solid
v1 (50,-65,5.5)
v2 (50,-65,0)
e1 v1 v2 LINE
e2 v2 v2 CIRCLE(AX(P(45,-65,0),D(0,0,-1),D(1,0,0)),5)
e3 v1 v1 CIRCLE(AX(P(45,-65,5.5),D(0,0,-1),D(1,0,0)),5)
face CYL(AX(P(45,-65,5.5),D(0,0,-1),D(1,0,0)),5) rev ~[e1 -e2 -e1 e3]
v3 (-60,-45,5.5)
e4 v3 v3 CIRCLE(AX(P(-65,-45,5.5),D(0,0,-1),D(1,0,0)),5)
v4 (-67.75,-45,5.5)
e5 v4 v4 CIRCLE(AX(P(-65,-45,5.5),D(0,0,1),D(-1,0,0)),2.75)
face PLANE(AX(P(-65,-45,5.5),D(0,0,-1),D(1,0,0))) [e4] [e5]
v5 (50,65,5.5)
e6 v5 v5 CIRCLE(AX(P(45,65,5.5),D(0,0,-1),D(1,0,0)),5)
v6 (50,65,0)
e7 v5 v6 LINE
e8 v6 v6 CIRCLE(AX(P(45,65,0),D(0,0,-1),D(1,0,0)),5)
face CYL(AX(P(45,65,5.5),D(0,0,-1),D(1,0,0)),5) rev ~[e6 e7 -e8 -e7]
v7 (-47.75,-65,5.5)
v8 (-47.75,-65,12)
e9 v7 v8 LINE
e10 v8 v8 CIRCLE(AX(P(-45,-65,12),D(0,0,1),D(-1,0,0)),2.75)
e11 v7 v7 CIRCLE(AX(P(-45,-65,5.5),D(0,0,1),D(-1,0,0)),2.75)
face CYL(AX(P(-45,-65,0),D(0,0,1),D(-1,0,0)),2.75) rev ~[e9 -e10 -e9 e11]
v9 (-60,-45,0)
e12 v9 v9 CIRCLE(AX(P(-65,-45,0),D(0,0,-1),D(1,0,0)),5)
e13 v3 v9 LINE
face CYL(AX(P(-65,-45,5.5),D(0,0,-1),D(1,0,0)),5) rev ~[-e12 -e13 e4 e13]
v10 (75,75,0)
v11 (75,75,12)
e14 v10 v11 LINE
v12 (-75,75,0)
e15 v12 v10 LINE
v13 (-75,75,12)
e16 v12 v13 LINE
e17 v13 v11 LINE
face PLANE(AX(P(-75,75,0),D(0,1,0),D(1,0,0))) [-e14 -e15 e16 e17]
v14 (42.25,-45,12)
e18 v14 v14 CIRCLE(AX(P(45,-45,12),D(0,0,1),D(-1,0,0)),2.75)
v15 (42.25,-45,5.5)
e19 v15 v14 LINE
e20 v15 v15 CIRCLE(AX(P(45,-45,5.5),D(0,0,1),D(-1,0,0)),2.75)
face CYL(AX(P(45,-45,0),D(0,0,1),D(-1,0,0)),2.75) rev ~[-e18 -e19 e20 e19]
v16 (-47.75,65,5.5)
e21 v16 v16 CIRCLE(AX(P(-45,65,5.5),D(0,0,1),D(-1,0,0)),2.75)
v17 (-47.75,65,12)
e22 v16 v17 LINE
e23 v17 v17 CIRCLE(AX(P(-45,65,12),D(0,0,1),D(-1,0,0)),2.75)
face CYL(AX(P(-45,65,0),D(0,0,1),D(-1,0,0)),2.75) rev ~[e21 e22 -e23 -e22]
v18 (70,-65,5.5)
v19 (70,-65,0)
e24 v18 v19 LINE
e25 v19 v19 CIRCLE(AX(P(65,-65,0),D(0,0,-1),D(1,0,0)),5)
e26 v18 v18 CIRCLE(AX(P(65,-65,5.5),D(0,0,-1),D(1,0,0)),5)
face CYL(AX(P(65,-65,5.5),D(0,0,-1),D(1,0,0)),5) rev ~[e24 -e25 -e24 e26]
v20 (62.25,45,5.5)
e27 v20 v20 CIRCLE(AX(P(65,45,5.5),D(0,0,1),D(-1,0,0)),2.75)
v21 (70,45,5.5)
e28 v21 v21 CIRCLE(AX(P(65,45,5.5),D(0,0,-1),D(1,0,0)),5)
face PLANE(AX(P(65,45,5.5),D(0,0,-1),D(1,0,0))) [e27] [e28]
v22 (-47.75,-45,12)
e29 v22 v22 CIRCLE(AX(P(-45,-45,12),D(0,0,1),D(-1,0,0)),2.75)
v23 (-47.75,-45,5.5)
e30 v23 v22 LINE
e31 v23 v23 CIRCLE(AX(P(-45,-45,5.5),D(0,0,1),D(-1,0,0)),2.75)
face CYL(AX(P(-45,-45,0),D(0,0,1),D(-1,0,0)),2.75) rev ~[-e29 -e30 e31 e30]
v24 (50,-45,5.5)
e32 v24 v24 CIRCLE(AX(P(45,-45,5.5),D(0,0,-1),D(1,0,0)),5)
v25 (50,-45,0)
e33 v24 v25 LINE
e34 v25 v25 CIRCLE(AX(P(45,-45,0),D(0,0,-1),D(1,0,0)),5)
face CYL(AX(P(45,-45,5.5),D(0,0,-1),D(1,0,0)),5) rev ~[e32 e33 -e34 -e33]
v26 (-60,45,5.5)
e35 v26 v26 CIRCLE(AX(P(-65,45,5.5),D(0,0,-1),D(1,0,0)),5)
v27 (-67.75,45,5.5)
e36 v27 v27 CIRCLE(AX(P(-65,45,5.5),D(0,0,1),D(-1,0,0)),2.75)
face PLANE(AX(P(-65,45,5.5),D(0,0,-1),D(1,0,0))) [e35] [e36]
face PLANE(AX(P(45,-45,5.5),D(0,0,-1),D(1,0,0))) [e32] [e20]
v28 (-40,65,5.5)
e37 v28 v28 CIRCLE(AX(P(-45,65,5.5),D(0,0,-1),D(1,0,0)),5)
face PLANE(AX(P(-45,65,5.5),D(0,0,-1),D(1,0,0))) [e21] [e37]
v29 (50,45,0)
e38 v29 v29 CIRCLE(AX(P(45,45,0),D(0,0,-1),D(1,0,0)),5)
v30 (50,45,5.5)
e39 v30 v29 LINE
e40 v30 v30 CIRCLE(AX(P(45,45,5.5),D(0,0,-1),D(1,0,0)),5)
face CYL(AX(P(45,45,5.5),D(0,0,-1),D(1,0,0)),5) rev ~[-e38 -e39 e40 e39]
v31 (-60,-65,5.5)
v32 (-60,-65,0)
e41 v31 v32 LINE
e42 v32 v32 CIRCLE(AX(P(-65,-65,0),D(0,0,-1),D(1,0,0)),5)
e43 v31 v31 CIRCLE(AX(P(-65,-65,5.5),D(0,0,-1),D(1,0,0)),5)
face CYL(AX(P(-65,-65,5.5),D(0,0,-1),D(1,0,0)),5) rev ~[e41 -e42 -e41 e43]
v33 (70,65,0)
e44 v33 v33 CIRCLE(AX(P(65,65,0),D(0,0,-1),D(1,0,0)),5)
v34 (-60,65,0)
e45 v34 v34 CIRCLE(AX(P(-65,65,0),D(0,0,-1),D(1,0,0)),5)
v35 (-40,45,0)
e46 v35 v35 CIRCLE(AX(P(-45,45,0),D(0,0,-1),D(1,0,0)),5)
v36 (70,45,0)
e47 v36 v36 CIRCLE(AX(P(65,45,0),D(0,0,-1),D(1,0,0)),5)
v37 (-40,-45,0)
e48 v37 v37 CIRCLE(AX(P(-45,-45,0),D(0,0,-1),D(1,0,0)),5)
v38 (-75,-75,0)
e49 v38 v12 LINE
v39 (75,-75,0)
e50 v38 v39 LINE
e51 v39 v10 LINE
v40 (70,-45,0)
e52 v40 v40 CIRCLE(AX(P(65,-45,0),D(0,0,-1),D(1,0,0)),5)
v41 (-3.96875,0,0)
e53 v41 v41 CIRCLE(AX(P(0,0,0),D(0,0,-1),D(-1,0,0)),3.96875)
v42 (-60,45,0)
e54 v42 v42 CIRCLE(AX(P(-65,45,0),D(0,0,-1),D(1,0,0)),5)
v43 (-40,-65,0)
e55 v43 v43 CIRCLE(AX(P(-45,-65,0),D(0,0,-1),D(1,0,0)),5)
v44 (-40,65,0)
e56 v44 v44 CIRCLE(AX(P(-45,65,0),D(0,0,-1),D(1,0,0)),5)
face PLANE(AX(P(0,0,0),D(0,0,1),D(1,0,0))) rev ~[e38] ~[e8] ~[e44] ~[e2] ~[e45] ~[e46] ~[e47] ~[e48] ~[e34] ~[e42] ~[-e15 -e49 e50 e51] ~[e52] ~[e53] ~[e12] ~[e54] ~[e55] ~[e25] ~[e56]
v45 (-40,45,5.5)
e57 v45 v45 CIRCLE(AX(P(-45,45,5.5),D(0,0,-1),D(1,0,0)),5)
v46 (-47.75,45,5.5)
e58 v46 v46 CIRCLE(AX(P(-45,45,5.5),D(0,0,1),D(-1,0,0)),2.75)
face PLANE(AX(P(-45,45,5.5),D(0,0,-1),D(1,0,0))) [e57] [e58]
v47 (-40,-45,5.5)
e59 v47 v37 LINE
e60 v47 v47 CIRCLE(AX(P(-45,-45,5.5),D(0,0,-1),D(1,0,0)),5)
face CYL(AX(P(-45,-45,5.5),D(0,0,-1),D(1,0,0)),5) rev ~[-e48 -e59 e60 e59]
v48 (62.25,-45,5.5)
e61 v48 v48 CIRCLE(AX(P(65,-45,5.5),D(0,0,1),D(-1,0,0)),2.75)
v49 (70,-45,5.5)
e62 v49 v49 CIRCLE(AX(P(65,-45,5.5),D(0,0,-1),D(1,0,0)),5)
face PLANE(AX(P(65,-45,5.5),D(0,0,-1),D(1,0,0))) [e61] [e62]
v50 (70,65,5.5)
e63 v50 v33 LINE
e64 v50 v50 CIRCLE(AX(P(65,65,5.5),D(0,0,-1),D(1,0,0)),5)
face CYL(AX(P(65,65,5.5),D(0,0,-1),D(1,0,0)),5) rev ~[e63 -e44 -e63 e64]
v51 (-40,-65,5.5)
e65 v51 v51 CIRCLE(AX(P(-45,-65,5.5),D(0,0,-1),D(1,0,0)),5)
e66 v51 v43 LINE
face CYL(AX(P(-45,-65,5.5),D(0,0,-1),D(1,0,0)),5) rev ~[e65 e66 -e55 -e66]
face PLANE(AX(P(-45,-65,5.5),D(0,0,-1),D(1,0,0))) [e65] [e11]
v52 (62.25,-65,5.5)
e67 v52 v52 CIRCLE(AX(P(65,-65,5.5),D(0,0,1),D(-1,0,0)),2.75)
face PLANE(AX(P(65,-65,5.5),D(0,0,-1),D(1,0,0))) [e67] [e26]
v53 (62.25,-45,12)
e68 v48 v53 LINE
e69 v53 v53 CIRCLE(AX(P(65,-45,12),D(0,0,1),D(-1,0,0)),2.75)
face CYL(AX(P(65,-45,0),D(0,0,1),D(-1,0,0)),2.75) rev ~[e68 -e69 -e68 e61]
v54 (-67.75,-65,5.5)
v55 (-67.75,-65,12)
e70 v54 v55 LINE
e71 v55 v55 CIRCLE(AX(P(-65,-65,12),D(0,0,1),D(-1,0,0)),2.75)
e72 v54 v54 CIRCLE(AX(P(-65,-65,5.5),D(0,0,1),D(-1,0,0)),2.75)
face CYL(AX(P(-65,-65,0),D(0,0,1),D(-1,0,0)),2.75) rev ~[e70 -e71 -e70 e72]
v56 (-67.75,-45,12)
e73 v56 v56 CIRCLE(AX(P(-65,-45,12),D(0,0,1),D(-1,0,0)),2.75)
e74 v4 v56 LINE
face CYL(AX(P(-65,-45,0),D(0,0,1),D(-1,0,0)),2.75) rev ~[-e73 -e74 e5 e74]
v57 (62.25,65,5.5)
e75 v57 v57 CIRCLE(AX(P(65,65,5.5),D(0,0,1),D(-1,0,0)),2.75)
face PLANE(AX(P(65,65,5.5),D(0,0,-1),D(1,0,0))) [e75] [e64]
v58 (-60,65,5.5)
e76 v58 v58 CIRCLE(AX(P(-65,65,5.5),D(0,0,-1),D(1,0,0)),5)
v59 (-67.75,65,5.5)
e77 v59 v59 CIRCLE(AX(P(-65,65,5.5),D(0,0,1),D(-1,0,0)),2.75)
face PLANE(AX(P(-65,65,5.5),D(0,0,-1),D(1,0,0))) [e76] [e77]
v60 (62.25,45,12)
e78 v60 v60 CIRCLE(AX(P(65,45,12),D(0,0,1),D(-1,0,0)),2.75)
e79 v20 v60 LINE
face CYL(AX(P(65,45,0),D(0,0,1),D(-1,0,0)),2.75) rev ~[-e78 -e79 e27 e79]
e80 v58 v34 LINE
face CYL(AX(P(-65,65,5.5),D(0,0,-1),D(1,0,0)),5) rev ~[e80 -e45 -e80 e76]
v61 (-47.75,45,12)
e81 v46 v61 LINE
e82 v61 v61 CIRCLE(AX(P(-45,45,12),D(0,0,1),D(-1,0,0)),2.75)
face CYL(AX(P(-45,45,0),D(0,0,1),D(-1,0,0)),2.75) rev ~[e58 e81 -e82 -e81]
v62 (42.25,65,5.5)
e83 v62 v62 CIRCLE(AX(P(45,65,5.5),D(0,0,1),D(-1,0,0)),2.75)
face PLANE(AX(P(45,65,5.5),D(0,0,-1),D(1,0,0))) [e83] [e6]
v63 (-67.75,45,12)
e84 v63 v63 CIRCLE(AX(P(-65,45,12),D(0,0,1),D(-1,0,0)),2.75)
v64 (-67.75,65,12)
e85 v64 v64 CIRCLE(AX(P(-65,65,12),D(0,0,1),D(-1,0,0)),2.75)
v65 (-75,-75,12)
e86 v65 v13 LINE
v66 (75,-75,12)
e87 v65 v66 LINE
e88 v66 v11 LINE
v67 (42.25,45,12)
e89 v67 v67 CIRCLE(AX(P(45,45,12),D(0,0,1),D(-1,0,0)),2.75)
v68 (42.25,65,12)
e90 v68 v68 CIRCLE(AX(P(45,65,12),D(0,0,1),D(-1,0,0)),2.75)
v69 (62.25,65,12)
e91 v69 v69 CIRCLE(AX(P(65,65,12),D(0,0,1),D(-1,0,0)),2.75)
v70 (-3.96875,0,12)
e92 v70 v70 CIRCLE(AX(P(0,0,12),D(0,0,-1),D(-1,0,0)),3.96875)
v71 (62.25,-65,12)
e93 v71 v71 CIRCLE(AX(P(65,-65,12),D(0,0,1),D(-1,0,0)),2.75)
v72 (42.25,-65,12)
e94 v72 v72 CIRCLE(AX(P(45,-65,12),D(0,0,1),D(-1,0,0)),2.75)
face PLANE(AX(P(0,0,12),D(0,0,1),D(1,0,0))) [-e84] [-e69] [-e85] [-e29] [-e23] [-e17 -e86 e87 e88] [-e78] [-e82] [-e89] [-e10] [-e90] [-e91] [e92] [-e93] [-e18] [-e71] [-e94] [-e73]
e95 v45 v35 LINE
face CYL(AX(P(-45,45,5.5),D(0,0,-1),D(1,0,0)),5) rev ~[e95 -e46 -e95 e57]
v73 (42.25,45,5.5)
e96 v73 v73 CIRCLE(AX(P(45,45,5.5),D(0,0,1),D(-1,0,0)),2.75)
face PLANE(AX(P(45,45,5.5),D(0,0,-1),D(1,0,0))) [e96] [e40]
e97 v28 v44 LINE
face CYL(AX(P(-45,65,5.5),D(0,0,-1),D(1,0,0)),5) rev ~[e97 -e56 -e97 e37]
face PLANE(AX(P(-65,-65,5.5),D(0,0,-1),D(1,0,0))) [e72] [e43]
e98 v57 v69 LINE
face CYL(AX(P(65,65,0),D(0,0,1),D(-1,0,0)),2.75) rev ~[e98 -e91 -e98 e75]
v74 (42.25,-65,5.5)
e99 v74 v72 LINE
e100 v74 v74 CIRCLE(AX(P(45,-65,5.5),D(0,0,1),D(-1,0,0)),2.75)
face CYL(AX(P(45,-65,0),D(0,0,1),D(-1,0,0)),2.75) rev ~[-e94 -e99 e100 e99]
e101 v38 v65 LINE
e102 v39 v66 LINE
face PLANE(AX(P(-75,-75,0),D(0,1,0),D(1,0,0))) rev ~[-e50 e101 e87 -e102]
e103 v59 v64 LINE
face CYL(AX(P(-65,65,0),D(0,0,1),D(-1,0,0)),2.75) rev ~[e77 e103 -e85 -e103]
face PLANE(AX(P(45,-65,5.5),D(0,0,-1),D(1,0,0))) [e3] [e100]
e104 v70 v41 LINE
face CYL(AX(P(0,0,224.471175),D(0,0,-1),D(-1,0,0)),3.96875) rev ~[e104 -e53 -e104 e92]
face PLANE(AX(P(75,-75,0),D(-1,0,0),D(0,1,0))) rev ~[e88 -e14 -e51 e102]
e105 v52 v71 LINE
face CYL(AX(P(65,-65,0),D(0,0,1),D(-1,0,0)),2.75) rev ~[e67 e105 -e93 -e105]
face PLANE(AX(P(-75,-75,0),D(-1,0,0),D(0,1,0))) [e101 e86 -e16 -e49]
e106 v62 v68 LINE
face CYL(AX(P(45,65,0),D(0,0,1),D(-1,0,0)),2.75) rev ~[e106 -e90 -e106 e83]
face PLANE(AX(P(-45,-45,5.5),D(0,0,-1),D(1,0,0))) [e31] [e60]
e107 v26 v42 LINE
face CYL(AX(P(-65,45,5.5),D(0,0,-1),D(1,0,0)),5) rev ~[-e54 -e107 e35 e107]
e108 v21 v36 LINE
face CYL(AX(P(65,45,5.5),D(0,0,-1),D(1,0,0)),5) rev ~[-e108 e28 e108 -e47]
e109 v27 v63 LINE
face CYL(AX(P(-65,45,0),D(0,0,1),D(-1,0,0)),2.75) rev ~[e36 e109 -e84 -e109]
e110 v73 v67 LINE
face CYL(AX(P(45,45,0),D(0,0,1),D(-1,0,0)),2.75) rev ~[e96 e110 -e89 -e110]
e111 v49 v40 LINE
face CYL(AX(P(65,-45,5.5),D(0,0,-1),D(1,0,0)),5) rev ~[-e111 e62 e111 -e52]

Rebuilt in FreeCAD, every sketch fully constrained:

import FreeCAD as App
import Part
import Sketcher

V = App.Vector


def add_polygon(sketch, points):
    """Adds a closed chain of lines whose ends are joined by coincident constraints."""
    first, n = sketch.GeometryCount, len(points)
    for a, b in zip(points, points[1:] + points[:1]):
        sketch.addGeometry(Part.LineSegment(App.Vector(*a, 0), App.Vector(*b, 0)), False)
    for i in range(n):
        sketch.addConstraint(Sketcher.Constraint("Coincident", first + i, 2, first + (i + 1) % n, 1))

doc = App.newDocument("Part")
body = doc.addObject("PartDesign::Body", "Body")

# Sketch on XY plane
sketch1 = body.newObject("Sketcher::SketchObject", "Sketch")
sketch1.AttachmentSupport = (doc.getObject("XY_Plane"), [""])
sketch1.MapMode = "FlatFace"
add_polygon(sketch1, [(-75, 75), (-75, -75), (75, -75), (75, 75)])  # lines 0-3
sketch1.addConstraint([
    Sketcher.Constraint("Vertical", 0),
    Sketcher.Constraint("Horizontal", 1),
    Sketcher.Constraint("Vertical", 2),
    Sketcher.Constraint("Horizontal", 3),
    Sketcher.Constraint("Symmetric", 0, 2, 2, 2, -1, 1),
    Sketcher.Constraint("Equal", 3, 0),
    Sketcher.Constraint("DistanceX", 1, 1, 1, 2, 150.0),
])
pad1 = body.newObject("PartDesign::Pad", "Pad")
pad1.Profile = sketch1
pad1.Length = 12

# Sketch on XY plane
sketch2 = body.newObject("Sketcher::SketchObject", "Sketch001")
sketch2.AttachmentSupport = (doc.getObject("XY_Plane"), [""])
sketch2.MapMode = "FlatFace"
sketch2.AttachmentOffset = App.Placement(V(0, 0, 12), App.Rotation())
sketch2.addGeometry(Part.Circle(V(0, 0, 0), V(0, 0, 1), 4), False)
sketch2.addConstraint([
    Sketcher.Constraint("Coincident", 0, 3, -1, 1),
    Sketcher.Constraint("Diameter", 0, 7.9375),
])
doc.recompute()
hole = body.newObject("PartDesign::Hole", "Hole")
hole.Profile = sketch2
hole.ThreadType = "None"
hole.Diameter = 7.9375
hole.DepthType = "ThroughAll"

# Sketch on XY plane
sketch3 = body.newObject("Sketcher::SketchObject", "Sketch002")
sketch3.AttachmentSupport = (doc.getObject("XY_Plane"), [""])
sketch3.MapMode = "FlatFace"
sketch3.addGeometry([
    Part.Circle(V(-65, 65, 0), V(0, 0, 1), 2.8),  # 0
    Part.Circle(V(-45, 65, 0), V(0, 0, 1), 2.8),  # 1
    Part.Circle(V(-65, 45, 0), V(0, 0, 1), 2.8),  # 2
    Part.Circle(V(-65, -45, 0), V(0, 0, 1), 2.8),  # 3
    Part.Circle(V(-45, -65, 0), V(0, 0, 1), 2.8),  # 4
    Part.Circle(V(-65, -65, 0), V(0, 0, 1), 2.8),  # 5
    Part.Circle(V(65, -45, 0), V(0, 0, 1), 2.8),  # 6
    Part.Circle(V(65, -65, 0), V(0, 0, 1), 2.8),  # 7
    Part.Circle(V(45, -65, 0), V(0, 0, 1), 2.8),  # 8
    Part.Circle(V(45, 65, 0), V(0, 0, 1), 2.8),  # 9
    Part.Circle(V(65, 65, 0), V(0, 0, 1), 2.8),  # 10
    Part.Circle(V(65, 45, 0), V(0, 0, 1), 2.8),  # 11
    Part.Circle(V(-45, 45, 0), V(0, 0, 1), 2.8),  # 12
    Part.Circle(V(45, 45, 0), V(0, 0, 1), 2.8),  # 13
    Part.Circle(V(45, -45, 0), V(0, 0, 1), 2.8),  # 14
    Part.Circle(V(-45, -45, 0), V(0, 0, 1), 2.8),  # 15
], False)
sketch3.addConstraint([
    Sketcher.Constraint("Equal", 0, 1),
    Sketcher.Constraint("Equal", 1, 2),
    Sketcher.Constraint("Equal", 2, 3),
    Sketcher.Constraint("Equal", 3, 4),
    Sketcher.Constraint("Equal", 4, 5),
    Sketcher.Constraint("Equal", 5, 6),
    Sketcher.Constraint("Equal", 6, 7),
    Sketcher.Constraint("Equal", 7, 8),
    Sketcher.Constraint("Equal", 8, 9),
    Sketcher.Constraint("Equal", 9, 10),
    Sketcher.Constraint("Equal", 10, 11),
    Sketcher.Constraint("Equal", 11, 12),
    Sketcher.Constraint("Equal", 12, 13),
    Sketcher.Constraint("Equal", 13, 14),
    Sketcher.Constraint("Equal", 14, 15),
    Sketcher.Constraint("Symmetric", 2, 3, 6, 3, -1, 1),
    Sketcher.Constraint("Symmetric", 0, 3, 7, 3, -1, 1),
    Sketcher.Constraint("Symmetric", 1, 3, 8, 3, -1, 1),
    Sketcher.Constraint("Symmetric", 4, 3, 9, 3, -1, 1),
    Sketcher.Constraint("Symmetric", 5, 3, 10, 3, -1, 1),
    Sketcher.Constraint("Symmetric", 3, 3, 11, 3, -1, 1),
    Sketcher.Constraint("Symmetric", 12, 3, 14, 3, -1, 1),
    Sketcher.Constraint("Symmetric", 13, 3, 15, 3, -1, 1),
    Sketcher.Constraint("Symmetric", 3, 3, 6, 3, -2),
    Sketcher.Constraint("Symmetric", 5, 3, 7, 3, -2),
    Sketcher.Constraint("Symmetric", 4, 3, 8, 3, -2),
    Sketcher.Constraint("Symmetric", 12, 3, 13, 3, -2),
    Sketcher.Constraint("Horizontal", 0, 3, 1, 3),
    Sketcher.Constraint("Horizontal", 11, 3, 12, 3),
    Sketcher.Constraint("Vertical", 0, 3, 2, 3),
    Sketcher.Constraint("Vertical", 4, 3, 12, 3),
    Sketcher.Constraint("Diameter", 0, 5.5),
    Sketcher.Constraint("DistanceX", 0, 3, -1, 1, 65.0),
    Sketcher.Constraint("DistanceY", -1, 1, 0, 3, 65.0),
    Sketcher.Constraint("DistanceX", 1, 3, -1, 1, 45.0),
    Sketcher.Constraint("DistanceY", -1, 1, 2, 3, 45.0),
])
doc.recompute()
hole2 = body.newObject("PartDesign::Hole", "Hole001")
hole2.Profile = sketch3
hole2.ThreadType = "None"
hole2.Diameter = 5.5
hole2.DepthType = "ThroughAll"
hole2.HoleCutType = "Counterbore"
hole2.HoleCutDiameter = 10
hole2.HoleCutDepth = 5.5
hole2.Reversed = True

doc.recompute()
